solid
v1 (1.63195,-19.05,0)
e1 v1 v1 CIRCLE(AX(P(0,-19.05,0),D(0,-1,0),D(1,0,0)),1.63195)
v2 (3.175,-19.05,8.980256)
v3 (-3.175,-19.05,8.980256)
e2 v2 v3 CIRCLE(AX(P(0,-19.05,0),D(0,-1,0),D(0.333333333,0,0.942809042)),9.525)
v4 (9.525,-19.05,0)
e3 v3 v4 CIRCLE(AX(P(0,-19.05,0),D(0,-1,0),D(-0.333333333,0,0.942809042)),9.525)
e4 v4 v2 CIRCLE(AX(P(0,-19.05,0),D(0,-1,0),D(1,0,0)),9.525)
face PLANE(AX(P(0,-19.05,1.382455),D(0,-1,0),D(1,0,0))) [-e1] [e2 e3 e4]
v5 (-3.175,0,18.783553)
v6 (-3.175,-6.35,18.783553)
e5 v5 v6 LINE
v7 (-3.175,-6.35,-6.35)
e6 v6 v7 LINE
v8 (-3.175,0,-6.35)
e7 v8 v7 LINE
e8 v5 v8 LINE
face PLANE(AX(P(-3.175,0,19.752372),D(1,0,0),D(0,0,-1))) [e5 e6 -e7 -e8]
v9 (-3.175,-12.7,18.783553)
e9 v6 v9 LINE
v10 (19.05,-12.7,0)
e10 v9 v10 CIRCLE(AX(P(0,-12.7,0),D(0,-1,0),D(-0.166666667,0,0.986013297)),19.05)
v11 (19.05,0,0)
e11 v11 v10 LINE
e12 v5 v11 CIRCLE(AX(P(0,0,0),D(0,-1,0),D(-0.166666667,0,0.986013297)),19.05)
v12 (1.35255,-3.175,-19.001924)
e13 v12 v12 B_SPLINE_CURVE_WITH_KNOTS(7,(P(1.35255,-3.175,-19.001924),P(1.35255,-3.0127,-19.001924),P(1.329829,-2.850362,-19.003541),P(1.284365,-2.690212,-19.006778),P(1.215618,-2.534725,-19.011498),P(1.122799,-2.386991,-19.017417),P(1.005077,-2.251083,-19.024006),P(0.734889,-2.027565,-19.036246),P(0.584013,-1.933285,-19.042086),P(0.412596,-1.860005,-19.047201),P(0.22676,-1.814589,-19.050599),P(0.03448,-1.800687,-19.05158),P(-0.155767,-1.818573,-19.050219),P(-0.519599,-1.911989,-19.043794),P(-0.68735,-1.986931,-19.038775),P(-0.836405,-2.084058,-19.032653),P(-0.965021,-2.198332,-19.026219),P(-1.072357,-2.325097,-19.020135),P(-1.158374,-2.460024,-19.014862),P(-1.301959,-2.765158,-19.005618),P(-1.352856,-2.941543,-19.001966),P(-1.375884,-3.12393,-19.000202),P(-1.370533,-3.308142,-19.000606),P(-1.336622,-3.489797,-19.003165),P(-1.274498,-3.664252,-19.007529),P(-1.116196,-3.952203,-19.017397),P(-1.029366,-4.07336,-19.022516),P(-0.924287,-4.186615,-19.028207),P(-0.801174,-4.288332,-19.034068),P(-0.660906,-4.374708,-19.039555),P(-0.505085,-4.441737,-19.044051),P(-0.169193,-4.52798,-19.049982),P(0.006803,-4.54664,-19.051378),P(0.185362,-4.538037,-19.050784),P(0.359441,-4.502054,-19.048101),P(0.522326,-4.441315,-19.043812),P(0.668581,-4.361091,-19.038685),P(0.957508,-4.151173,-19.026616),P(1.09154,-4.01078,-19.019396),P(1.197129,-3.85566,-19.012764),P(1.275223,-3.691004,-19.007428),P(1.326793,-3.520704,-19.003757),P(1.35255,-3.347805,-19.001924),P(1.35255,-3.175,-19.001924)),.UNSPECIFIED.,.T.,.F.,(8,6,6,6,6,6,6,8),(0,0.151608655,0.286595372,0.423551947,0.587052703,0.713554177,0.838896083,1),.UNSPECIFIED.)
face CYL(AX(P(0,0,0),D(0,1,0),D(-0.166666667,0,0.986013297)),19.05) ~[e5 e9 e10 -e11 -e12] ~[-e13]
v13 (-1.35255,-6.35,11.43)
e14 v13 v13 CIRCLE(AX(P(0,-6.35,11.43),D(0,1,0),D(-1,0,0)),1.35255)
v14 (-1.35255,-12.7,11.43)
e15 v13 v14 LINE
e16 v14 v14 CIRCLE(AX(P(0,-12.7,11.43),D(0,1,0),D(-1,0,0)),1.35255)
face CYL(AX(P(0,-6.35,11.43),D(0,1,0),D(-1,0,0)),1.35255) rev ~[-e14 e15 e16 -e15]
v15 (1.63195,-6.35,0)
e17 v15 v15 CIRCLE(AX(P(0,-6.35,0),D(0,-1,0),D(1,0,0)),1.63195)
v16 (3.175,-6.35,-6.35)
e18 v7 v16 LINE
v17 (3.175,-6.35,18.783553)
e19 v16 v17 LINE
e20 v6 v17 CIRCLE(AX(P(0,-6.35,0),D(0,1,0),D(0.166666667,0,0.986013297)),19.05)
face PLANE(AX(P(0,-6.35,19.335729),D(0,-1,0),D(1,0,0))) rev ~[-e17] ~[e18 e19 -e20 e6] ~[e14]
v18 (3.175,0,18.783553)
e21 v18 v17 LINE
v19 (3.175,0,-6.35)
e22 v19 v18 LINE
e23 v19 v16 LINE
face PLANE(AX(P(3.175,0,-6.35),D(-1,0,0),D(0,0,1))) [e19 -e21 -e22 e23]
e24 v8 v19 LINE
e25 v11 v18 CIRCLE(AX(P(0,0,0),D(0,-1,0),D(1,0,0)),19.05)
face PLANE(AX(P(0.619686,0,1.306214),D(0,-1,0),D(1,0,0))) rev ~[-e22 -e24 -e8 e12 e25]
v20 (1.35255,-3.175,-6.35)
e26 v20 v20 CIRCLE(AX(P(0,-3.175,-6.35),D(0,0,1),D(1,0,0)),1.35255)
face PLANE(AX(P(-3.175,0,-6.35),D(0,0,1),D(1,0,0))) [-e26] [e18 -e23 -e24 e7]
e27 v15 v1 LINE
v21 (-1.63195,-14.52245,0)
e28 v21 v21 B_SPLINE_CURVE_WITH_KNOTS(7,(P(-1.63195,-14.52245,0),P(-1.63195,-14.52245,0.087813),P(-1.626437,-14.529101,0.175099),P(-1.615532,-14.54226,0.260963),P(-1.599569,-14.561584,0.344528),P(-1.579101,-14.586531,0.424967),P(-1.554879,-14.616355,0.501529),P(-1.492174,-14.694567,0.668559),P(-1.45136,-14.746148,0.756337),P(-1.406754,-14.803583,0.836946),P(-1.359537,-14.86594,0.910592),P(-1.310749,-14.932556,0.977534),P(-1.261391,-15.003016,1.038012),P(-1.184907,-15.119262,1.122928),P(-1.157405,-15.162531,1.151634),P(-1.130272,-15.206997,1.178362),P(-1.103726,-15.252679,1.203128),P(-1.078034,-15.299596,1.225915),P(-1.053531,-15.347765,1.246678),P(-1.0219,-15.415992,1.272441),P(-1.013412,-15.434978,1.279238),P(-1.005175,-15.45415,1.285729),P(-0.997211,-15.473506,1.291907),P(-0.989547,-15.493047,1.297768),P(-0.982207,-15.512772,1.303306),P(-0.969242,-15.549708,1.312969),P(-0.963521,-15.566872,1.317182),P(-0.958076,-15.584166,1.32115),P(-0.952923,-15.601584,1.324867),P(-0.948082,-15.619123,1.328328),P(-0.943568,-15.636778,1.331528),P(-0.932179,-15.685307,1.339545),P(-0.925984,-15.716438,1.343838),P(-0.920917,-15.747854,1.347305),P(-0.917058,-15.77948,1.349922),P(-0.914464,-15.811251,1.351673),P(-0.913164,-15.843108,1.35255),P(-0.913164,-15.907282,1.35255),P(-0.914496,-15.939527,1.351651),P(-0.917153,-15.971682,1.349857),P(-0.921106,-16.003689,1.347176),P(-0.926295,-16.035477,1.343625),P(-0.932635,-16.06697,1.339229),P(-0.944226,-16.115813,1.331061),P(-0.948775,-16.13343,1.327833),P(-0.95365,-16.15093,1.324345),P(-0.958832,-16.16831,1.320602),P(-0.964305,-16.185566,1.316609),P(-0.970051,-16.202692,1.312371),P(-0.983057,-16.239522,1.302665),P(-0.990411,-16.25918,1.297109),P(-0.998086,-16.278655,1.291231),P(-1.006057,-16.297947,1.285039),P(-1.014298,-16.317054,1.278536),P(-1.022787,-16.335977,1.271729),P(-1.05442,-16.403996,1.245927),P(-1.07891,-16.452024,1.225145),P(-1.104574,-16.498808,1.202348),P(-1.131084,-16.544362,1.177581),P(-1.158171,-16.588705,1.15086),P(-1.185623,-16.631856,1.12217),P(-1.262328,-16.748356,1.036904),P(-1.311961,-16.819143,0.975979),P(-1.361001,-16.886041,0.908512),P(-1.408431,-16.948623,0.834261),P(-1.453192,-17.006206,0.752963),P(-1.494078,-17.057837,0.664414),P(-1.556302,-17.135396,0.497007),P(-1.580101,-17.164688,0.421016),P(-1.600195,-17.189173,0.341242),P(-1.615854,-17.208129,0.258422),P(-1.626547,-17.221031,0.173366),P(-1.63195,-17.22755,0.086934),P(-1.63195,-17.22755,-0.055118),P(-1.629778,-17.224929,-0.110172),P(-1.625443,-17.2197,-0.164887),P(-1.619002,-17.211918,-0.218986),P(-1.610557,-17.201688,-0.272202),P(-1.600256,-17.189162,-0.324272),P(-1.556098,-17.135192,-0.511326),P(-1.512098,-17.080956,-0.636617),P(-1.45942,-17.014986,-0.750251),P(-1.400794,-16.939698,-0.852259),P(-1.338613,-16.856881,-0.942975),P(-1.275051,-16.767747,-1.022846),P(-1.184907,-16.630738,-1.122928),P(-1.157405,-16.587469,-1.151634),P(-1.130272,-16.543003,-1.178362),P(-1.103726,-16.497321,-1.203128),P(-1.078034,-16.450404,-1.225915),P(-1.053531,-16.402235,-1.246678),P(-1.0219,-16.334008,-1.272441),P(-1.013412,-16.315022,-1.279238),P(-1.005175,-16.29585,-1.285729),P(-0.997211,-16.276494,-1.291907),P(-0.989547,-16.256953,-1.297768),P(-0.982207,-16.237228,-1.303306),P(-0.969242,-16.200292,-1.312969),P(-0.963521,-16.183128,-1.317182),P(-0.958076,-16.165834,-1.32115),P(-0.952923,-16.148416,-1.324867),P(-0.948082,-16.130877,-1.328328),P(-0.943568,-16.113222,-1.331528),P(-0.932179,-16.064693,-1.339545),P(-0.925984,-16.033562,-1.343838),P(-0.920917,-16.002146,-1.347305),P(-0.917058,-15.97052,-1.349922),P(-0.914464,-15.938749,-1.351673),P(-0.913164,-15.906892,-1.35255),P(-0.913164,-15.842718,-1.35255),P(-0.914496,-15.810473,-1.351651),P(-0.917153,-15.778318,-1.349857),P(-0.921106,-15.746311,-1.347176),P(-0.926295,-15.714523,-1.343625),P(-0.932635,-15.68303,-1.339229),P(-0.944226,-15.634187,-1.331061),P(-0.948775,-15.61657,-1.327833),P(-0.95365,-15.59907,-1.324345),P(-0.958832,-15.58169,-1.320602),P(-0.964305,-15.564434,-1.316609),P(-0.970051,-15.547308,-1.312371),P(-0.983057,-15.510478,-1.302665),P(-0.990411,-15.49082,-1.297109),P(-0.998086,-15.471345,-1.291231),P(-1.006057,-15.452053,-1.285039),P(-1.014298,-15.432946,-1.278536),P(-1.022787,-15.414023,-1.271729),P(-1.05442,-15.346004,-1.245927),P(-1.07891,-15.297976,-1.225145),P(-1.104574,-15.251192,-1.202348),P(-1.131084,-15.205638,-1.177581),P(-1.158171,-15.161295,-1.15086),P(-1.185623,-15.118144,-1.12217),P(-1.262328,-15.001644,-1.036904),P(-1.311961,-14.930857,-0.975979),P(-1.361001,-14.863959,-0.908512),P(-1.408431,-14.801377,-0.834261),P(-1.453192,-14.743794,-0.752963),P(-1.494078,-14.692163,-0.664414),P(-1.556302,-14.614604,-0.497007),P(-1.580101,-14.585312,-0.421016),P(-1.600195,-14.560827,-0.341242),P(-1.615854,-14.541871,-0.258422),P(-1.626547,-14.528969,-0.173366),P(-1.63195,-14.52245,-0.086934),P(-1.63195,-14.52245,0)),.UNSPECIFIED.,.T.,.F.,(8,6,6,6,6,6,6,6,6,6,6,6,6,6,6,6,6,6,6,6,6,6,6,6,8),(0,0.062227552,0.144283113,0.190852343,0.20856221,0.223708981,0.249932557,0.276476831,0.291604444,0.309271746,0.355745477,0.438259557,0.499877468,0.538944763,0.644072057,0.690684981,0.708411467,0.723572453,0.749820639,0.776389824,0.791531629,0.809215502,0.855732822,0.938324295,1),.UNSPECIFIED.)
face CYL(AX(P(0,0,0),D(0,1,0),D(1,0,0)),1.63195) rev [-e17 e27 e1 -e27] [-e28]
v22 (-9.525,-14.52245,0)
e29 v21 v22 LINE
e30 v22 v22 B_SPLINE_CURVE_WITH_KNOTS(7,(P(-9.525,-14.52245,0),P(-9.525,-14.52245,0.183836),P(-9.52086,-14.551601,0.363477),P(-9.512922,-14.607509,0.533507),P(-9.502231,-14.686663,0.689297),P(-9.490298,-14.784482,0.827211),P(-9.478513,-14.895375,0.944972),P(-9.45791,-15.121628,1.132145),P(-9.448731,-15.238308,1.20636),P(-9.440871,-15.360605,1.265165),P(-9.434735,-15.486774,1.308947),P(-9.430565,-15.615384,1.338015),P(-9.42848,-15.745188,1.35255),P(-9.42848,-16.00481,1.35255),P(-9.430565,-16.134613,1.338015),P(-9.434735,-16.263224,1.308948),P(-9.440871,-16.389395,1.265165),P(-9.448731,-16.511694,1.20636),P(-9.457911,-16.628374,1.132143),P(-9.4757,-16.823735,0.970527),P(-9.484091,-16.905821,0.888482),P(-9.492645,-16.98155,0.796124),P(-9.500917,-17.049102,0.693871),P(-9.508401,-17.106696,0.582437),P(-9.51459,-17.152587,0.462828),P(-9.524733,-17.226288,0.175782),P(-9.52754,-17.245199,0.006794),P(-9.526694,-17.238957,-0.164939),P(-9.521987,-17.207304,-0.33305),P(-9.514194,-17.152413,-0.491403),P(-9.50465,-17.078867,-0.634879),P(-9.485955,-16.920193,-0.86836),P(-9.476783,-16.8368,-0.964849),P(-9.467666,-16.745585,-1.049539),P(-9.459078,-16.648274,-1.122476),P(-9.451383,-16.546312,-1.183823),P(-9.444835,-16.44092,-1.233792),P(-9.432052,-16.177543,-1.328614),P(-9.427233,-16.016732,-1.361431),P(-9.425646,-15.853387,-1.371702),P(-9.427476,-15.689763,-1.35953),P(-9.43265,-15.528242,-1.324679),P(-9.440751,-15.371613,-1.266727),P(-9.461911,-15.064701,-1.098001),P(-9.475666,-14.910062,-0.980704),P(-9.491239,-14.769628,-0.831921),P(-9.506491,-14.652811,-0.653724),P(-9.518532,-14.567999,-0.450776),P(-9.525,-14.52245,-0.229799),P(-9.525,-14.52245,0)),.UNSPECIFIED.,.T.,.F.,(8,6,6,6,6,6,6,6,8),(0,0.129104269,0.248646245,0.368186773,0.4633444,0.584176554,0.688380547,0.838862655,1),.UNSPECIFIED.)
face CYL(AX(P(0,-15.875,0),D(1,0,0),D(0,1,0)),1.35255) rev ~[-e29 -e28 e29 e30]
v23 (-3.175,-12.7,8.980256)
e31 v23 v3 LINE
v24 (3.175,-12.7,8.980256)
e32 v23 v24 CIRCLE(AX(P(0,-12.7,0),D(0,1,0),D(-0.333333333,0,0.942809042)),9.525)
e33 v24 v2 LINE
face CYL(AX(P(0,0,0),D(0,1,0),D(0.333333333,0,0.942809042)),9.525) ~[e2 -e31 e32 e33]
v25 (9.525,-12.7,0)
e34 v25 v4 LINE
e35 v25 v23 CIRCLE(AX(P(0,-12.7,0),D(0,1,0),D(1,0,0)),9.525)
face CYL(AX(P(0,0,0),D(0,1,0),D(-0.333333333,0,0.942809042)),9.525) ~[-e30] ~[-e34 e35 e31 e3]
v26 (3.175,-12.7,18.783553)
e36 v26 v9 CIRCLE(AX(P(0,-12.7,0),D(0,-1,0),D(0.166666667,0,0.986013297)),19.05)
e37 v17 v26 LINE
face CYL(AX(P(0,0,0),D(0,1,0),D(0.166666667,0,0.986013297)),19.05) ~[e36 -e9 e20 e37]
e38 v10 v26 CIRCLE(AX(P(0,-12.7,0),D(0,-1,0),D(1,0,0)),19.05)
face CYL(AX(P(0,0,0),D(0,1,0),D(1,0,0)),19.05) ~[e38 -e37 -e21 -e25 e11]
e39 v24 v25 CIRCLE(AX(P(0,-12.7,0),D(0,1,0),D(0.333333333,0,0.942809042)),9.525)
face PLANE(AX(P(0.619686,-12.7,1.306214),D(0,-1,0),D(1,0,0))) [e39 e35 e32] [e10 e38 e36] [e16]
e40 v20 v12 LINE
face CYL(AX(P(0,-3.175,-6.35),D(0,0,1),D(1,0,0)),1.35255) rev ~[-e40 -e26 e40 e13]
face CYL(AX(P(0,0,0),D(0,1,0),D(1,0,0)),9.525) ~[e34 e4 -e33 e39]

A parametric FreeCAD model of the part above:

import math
import FreeCAD as App
import Part
import Sketcher
Q = App.Units.Quantity


def add_polygon(sketch, points):
    """Adds a closed chain of lines whose ends are joined by coincident constraints."""
    first, n = sketch.GeometryCount, len(points)
    for a, b in zip(points, points[1:] + points[:1]):
        sketch.addGeometry(Part.LineSegment(App.Vector(*a, 0), App.Vector(*b, 0)), False)
    for i in range(n):
        sketch.addConstraint(Sketcher.Constraint("Coincident", first + i, 2, first + (i + 1) % n, 1))

doc = App.newDocument("Part")
body = doc.addObject("PartDesign::Body", "Body")

# Sketch on XZ plane
sketch1 = doc.addObject("Sketcher::SketchObject", "Sketch")
body.addObject(sketch1)
sketch1.AttachmentSupport = (doc.XZ_Plane, [""])
sketch1.MapMode = "FlatFace"
sketch1.addGeometry([
    Part.ArcOfCircle(Part.Circle(App.Vector(0, 0, 0), App.Vector(0, 0, 1), 19), math.radians(100), math.radians(360)),  # 0
    Part.ArcOfCircle(Part.Circle(App.Vector(0, 0, 0), App.Vector(0, 0, 1), 19), math.radians(0), math.radians(80)),  # 1
    Part.ArcOfCircle(Part.Circle(App.Vector(0, 0, 0), App.Vector(0, 0, 1), 19), math.radians(80.41), math.radians(99.59)),  # 2
    Part.ArcOfCircle(Part.Circle(App.Vector(0, 0, 0), App.Vector(0, 0, 1), 10), math.radians(0), math.radians(71)),  # 3
    Part.ArcOfCircle(Part.Circle(App.Vector(0, 0, 0), App.Vector(0, 0, 1), 10), math.radians(109), math.radians(360)),  # 4
    Part.ArcOfCircle(Part.Circle(App.Vector(0, 0, 0), App.Vector(0, 0, 1), 10), math.radians(71), math.radians(109)),  # 5
], False)
sketch1.addConstraint([
    Sketcher.Constraint("Tangent", 0, 2, 1, 1),
    Sketcher.Constraint("Tangent", 1, 2, 2, 1),
    Sketcher.Constraint("Tangent", 2, 2, 0, 1),
    Sketcher.Constraint("Tangent", 3, 1, 4, 2),
    Sketcher.Constraint("Tangent", 4, 1, 5, 2),
    Sketcher.Constraint("Tangent", 5, 1, 3, 2),
    Sketcher.Constraint("Coincident", 0, 3, -1, 1),
    Sketcher.Constraint("Coincident", 3, 3, -1, 1),
    Sketcher.Constraint("PointOnObject", 0, 2, -1),
    Sketcher.Constraint("PointOnObject", 3, 1, -1),
    Sketcher.Constraint("Horizontal", 1, 2, 2, 2),
    Sketcher.Constraint("Horizontal", 4, 1, 5, 1),
    Sketcher.Constraint("Vertical", 2, 2, 4, 1),
    Sketcher.Constraint("Radius", 0, Q("0.75 in")),
    Sketcher.Constraint("Radius", 3, Q("0.375 in")),
    Sketcher.Constraint("DistanceX", 2, 2, 1, 2, Q("0.25 in")),
])
pad1 = doc.addObject("PartDesign::Pad", "Pad")
body.addObject(pad1)
pad1.Profile = sketch1
pad1.Length = Q("0.5 in")

# Sketch on XZ plane
sketch2 = doc.addObject("Sketcher::SketchObject", "Sketch001")
body.addObject(sketch2)
sketch2.AttachmentSupport = (doc.XZ_Plane, [""])
sketch2.MapMode = "FlatFace"
sketch2.addGeometry([
    Part.ArcOfCircle(Part.Circle(App.Vector(0, 0, 0), App.Vector(0, 0, 1), 9.5), math.radians(71), math.radians(109)),
    Part.ArcOfCircle(Part.Circle(App.Vector(0, 0, 0), App.Vector(0, 0, 1), 9.5), math.radians(109), math.radians(360)),
    Part.ArcOfCircle(Part.Circle(App.Vector(0, 0, 0), App.Vector(0, 0, 1), 9.5), math.radians(0), math.radians(71)),
    Part.Circle(App.Vector(0, 0, 0), App.Vector(0, 0, 1), 1.6),
], False)
sketch2.addConstraint([
    Sketcher.Constraint("Tangent", 0, 2, 1, 1),
    Sketcher.Constraint("Tangent", 1, 2, 2, 1),
    Sketcher.Constraint("Tangent", 2, 2, 0, 1),
    Sketcher.Constraint("Coincident", 0, 3, -1, 1),
    Sketcher.Constraint("Coincident", 3, 3, -1, 1),
    Sketcher.Constraint("PointOnObject", 1, 2, -1),
    Sketcher.Constraint("Horizontal", 0, 2, 2, 2),
    Sketcher.Constraint("Radius", 0, Q("0.375 in")),
    Sketcher.Constraint("Diameter", 3, Q("0.1285 in")),
    Sketcher.Constraint("DistanceX", 0, 2, 1, 2, Q("0.5 in")),
])
pad2 = doc.addObject("PartDesign::Pad", "Pad001")
body.addObject(pad2)
pad2.Profile = sketch2
pad2.Length = Q("0.75 in")

# Sketch on YZ plane
sketch3 = doc.addObject("Sketcher::SketchObject", "Sketch002")
body.addObject(sketch3)
sketch3.AttachmentSupport = (doc.YZ_Plane, [""])
sketch3.MapMode = "FlatFace"
sketch3.addGeometry(Part.Circle(App.Vector(-15.9, 0, 0), App.Vector(0, 0, 1), 1.4), False)
sketch3.addConstraint([
    Sketcher.Constraint("PointOnObject", 0, 3, -1),
    Sketcher.Constraint("Diameter", 0, Q("0.1065 in")),
    Sketcher.Constraint("DistanceX", 0, 3, -1, 1, Q("0.625 in")),
])
pocket1 = doc.addObject("PartDesign::Pocket", "Pocket")
body.addObject(pocket1)
pocket1.Profile = sketch3
pocket1.Length = Q("1 in")

# Sketch on XZ plane
sketch4 = doc.addObject("Sketcher::SketchObject", "Sketch003")
body.addObject(sketch4)
sketch4.AttachmentSupport = (doc.XZ_Plane, [""])
sketch4.MapMode = "FlatFace"
add_polygon(sketch4, [(3.2, 19.8), (-3.2, 19.8), (-3.2, -6.3), (3.2, -6.3)])  # lines 0-3
sketch4.addGeometry(Part.Circle(App.Vector(0, 0, 0), App.Vector(0, 0, 1), 1.6), False)  # 4
sketch4.addConstraint([
    Sketcher.Constraint("Horizontal", 0),
    Sketcher.Constraint("Vertical", 1),
    Sketcher.Constraint("Horizontal", 2),
    Sketcher.Constraint("Vertical", 3),
    Sketcher.Constraint("Coincident", 4, 3, -1, 1),
    Sketcher.Constraint("Diameter", 4, Q("0.1285 in")),
    Sketcher.Constraint("DistanceX", 0, 2, 0, 1, Q("0.25 in")),
    Sketcher.Constraint("DistanceY", 1, 2, -1, 1, Q("0.25 in")),
    Sketcher.Constraint("DistanceX", 0, 2, -1, 1, Q("0.125 in")),
    Sketcher.Constraint("DistanceY", 1, 2, 1, 1, 26.102372),
])
pocket2 = doc.addObject("PartDesign::Pocket", "Pocket001")
body.addObject(pocket2)
pocket2.Profile = sketch4
pocket2.Length = Q("0.25 in")
pocket2.Reversed = True

# Sketch on XZ plane
sketch5 = doc.addObject("Sketcher::SketchObject", "Sketch004")
body.addObject(sketch5)
sketch5.AttachmentSupport = (doc.XZ_Plane, [""])
sketch5.MapMode = "FlatFace"
sketch5.AttachmentOffset = App.Placement(App.Vector(0, 0, 0.25 * 25.4), App.Rotation())
sketch5.addGeometry(Part.Circle(App.Vector(0, 11.4, 0), App.Vector(0, 0, 1), 1.4), False)
sketch5.addConstraint([
    Sketcher.Constraint("PointOnObject", 0, 3, -2),
    Sketcher.Constraint("Diameter", 0, Q("0.1065 in")),
    Sketcher.Constraint("DistanceY", -1, 1, 0, 3, Q("0.45 in")),
])
pocket3 = doc.addObject("PartDesign::Pocket", "Pocket002")
body.addObject(pocket3)
pocket3.Profile = sketch5
pocket3.Length = Q("1 in")
pocket3.Reversed = True

# Sketch on XY plane
sketch6 = doc.addObject("Sketcher::SketchObject", "Sketch005")
body.addObject(sketch6)
sketch6.AttachmentSupport = (doc.XY_Plane, [""])
sketch6.MapMode = "FlatFace"
sketch6.AttachmentOffset = App.Placement(App.Vector(0, 0, -0.25 * 25.4), App.Rotation())
sketch6.addGeometry(Part.Circle(App.Vector(0, -3.2, 0), App.Vector(0, 0, 1), 1.4), False)
sketch6.addConstraint([
    Sketcher.Constraint("PointOnObject", 0, 3, -2),
    Sketcher.Constraint("Diameter", 0, Q("0.1065 in")),
    Sketcher.Constraint("DistanceY", 0, 3, -1, 1, Q("0.125 in")),
])
pocket4 = doc.addObject("PartDesign::Pocket", "Pocket003")
body.addObject(pocket4)
pocket4.Profile = sketch6
pocket4.Type = "ThroughAll"

doc.recompute()
